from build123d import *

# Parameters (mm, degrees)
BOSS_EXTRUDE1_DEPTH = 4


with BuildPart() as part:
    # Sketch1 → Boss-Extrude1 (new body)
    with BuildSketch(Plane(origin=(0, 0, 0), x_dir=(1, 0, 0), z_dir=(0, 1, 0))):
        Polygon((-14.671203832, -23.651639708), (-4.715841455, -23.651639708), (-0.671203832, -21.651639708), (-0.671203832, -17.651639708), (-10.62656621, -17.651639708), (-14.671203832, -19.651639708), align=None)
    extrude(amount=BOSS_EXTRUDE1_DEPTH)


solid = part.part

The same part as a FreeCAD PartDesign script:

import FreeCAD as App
import Part
import Sketcher
from FreeCAD import Vector

doc = App.newDocument("Part")
body = doc.addObject("PartDesign::Body", "Body")

sketch1 = body.newObject("Sketcher::SketchObject", "Sketch")
sketch1.AttachmentSupport = (doc.getObject("XZ_Plane"), [""])
sketch1.MapMode = "FlatFace"
sketch1.addGeometry(Part.LineSegment(Vector(-14.7, 23.7, 0), Vector(-4.7, 23.7, 0)), False)
sketch1.addGeometry(Part.LineSegment(Vector(-4.7, 23.7, 0), Vector(-0.7, 21.7, 0)), False)
sketch1.addGeometry(Part.LineSegment(Vector(-0.7, 21.7, 0), Vector(-0.7, 17.7, 0)), False)
sketch1.addGeometry(Part.LineSegment(Vector(-0.7, 17.7, 0), Vector(-10.6, 17.7, 0)), False)
sketch1.addGeometry(Part.LineSegment(Vector(-10.6, 17.7, 0), Vector(-14.7, 19.7, 0)), False)
sketch1.addGeometry(Part.LineSegment(Vector(-14.7, 19.7, 0), Vector(-14.7, 23.7, 0)), False)
sketch1.addConstraint(Sketcher.Constraint("Coincident", 0, 2, 1, 1))
sketch1.addConstraint(Sketcher.Constraint("Coincident", 1, 2, 2, 1))
sketch1.addConstraint(Sketcher.Constraint("Coincident", 2, 2, 3, 1))
sketch1.addConstraint(Sketcher.Constraint("Coincident", 3, 2, 4, 1))
sketch1.addConstraint(Sketcher.Constraint("Coincident", 4, 2, 5, 1))
sketch1.addConstraint(Sketcher.Constraint("Coincident", 5, 2, 0, 1))
sketch1.addConstraint(Sketcher.Constraint("Horizontal", 0))
sketch1.addConstraint(Sketcher.Constraint("Vertical", 2))
sketch1.addConstraint(Sketcher.Constraint("Horizontal", 3))
sketch1.addConstraint(Sketcher.Constraint("Vertical", 5))
sketch1.addConstraint(Sketcher.Constraint("Parallel", 1, 4))
sketch1.addConstraint(Sketcher.Constraint("Equal", 0, 3))
sketch1.addConstraint(Sketcher.Constraint("DistanceY", 2, 2, 2, 1, 4.0))
sketch1.addConstraint(Sketcher.Constraint("DistanceY", 1, 2, 0, 2, 2.0))
sketch1.addConstraint(Sketcher.Constraint("DistanceX", 4, 2, 1, 2, 14.0))
sketch1.addConstraint(Sketcher.Constraint("DistanceX", 0, 1, 0, 2, 9.955362))
sketch1.addConstraint(Sketcher.Constraint("DistanceX", 0, 2, -1, 1, 4.715841))
sketch1.addConstraint(Sketcher.Constraint("DistanceY", -1, 1, 0, 2, 23.65164))
pad1 = body.newObject("PartDesign::Pad", "Pad")
pad1.Profile = sketch1
pad1.Length = 4
pad1.Reversed = True

doc.recompute()
